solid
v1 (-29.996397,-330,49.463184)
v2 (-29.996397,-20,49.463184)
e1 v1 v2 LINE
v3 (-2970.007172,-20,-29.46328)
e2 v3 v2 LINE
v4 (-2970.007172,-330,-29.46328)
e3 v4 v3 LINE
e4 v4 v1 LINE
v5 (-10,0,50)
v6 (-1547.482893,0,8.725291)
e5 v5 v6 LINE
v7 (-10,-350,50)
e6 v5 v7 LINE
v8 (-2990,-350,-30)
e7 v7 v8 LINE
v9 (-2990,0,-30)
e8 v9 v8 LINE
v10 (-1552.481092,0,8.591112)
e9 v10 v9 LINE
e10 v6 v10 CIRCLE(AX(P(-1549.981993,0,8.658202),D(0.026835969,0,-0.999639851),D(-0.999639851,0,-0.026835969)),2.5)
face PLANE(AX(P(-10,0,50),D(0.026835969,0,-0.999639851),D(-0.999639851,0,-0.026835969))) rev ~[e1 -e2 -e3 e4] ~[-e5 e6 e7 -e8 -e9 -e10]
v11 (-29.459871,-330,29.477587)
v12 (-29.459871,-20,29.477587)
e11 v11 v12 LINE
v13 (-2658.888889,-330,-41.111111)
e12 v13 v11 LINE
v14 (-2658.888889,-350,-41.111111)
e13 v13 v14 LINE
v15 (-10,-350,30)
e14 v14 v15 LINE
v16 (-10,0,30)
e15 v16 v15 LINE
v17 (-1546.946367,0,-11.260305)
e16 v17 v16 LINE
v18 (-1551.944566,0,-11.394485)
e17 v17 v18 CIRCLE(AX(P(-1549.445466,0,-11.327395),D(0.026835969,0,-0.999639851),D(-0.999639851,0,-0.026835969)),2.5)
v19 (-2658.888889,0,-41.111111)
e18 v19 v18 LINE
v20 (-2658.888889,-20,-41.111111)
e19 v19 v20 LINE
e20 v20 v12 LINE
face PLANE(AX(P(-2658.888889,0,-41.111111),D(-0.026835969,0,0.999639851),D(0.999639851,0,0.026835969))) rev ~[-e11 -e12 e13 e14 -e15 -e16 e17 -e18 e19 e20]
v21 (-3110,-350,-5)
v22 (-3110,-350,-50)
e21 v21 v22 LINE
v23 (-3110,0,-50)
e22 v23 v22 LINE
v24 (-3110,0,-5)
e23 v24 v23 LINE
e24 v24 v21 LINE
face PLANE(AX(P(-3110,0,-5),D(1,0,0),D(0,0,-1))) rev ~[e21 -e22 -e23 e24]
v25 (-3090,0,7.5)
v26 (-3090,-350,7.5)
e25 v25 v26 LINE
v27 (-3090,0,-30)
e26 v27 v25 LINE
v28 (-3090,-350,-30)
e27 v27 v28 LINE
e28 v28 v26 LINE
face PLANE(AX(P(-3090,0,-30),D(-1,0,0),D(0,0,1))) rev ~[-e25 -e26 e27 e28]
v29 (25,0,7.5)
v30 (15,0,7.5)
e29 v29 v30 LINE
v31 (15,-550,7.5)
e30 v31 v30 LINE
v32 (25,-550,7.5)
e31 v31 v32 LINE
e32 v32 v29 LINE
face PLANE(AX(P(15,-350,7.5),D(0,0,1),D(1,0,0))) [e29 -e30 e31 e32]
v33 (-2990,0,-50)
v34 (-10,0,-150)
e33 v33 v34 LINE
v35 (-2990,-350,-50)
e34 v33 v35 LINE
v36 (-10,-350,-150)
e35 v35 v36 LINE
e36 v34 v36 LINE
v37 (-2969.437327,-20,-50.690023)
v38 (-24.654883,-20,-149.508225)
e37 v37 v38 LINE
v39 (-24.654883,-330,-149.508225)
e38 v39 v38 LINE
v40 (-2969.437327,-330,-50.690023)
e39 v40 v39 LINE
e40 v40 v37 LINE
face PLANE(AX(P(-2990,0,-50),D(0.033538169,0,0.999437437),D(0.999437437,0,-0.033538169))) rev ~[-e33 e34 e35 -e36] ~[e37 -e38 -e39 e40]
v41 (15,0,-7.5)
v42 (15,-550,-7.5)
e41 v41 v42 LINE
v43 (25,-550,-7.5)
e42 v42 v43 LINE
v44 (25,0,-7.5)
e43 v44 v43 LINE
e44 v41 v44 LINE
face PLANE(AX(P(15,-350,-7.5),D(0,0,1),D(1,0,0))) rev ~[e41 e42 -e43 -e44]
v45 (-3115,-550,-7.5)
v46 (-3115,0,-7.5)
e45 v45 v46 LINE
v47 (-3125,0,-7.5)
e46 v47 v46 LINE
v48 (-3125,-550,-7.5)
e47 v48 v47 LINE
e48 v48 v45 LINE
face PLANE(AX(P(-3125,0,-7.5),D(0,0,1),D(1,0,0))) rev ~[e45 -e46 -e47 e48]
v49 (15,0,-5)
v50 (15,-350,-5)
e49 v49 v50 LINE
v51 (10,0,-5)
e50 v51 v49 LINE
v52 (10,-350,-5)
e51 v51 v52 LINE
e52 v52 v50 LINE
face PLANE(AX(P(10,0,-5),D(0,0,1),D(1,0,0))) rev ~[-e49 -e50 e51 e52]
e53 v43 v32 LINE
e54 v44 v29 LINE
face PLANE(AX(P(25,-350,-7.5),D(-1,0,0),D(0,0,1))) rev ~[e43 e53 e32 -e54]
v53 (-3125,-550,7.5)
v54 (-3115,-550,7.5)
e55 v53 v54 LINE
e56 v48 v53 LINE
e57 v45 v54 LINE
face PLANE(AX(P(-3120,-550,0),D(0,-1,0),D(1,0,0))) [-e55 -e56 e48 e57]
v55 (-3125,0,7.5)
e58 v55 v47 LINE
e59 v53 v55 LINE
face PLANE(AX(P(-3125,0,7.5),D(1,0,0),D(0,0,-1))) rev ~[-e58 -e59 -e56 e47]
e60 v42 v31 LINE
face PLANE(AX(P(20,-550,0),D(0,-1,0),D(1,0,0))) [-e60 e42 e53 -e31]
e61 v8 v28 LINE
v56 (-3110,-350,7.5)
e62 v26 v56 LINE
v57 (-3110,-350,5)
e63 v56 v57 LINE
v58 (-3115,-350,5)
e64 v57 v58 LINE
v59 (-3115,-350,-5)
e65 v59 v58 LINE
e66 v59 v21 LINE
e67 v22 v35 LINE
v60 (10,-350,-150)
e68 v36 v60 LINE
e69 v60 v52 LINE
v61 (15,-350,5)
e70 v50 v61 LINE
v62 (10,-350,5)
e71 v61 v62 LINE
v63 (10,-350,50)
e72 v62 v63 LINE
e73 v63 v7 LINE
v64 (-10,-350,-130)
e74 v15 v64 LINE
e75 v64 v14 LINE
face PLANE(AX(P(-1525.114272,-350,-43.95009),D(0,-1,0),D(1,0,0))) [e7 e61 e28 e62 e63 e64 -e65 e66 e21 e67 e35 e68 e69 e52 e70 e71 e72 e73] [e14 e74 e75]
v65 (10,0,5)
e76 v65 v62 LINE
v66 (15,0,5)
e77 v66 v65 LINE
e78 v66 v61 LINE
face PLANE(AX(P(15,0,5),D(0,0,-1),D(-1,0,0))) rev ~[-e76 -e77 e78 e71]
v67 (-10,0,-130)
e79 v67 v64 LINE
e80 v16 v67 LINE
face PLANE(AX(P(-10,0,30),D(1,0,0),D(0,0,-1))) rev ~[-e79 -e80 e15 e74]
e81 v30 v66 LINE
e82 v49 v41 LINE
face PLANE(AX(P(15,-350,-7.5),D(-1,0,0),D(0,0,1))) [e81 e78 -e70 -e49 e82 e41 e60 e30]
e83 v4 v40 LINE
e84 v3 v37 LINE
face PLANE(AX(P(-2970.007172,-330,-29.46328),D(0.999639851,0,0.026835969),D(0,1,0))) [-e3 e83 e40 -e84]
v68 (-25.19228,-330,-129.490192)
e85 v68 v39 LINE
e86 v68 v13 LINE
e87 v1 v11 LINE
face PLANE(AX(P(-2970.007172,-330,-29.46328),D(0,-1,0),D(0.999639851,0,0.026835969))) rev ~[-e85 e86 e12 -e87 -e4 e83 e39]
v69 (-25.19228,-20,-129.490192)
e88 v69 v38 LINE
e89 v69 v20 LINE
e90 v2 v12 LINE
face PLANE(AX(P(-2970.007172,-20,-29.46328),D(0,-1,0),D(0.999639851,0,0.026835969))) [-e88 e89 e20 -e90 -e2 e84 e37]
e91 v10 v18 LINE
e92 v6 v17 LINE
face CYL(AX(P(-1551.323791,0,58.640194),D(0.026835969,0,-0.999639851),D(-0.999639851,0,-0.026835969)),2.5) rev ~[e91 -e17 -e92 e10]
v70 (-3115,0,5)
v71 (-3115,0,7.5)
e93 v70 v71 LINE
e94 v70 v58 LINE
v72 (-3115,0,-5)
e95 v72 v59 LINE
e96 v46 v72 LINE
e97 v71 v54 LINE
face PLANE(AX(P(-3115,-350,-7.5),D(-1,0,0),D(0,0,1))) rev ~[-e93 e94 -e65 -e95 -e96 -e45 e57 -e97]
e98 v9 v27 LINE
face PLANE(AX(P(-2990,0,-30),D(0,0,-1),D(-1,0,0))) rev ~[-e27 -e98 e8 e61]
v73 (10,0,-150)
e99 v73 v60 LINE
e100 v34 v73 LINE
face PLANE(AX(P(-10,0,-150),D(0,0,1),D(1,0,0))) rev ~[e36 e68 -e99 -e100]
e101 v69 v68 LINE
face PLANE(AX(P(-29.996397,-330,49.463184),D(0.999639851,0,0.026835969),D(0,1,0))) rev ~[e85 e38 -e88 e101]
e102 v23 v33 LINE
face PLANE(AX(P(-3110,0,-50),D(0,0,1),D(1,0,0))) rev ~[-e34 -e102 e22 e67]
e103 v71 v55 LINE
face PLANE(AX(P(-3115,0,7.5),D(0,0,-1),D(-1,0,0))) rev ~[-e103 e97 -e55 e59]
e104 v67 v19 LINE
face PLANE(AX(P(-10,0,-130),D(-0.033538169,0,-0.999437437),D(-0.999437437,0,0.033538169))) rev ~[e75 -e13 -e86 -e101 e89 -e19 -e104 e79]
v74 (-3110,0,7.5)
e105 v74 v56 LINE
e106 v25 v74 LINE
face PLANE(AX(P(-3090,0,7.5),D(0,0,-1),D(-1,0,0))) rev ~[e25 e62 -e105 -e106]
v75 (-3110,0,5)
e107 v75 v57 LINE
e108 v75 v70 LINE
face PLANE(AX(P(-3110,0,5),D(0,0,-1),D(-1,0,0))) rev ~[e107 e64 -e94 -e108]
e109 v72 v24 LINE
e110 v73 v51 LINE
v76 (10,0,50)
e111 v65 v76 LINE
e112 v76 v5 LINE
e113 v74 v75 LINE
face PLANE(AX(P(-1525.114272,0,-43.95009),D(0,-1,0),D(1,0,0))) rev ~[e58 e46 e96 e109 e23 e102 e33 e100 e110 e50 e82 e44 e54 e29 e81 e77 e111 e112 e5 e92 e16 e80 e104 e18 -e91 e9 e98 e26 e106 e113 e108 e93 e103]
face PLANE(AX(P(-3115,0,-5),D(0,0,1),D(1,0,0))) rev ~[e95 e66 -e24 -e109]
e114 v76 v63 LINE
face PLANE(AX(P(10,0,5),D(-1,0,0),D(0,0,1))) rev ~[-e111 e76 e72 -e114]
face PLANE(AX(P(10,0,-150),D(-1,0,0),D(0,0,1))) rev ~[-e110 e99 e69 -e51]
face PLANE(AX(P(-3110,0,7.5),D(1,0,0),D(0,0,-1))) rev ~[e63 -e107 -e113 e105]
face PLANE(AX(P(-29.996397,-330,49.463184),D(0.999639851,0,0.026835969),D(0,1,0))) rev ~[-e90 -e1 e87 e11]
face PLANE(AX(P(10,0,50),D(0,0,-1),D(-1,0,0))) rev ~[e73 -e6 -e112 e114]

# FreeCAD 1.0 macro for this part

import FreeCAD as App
import Part
import Sketcher

V = App.Vector
Q = App.Units.Quantity

doc = App.newDocument("Part")
body = doc.addObject("PartDesign::Body", "Body")

sketch1 = body.newObject("Sketcher::SketchObject", "Sketch")
sketch1.AttachmentSupport = (doc.getObject("XZ_Plane"), [""])
sketch1.MapMode = "FlatFace"
sketch1.addGeometry([
    Part.LineSegment(V(-2990, -50, 0), V(-10, -150, 0)),
    Part.LineSegment(V(-10, -150, 0), V(10, -150, 0)),
    Part.LineSegment(V(10, -150, 0), V(10, -5, 0)),
    Part.LineSegment(V(10, -5, 0), V(15, -5, 0)),
    Part.LineSegment(V(15, -5, 0), V(15, -7.5, 0)),
    Part.LineSegment(V(15, -7.5, 0), V(25, -7.5, 0)),
    Part.LineSegment(V(25, -7.5, 0), V(25, 7.5, 0)),
    Part.LineSegment(V(25, 7.5, 0), V(15, 7.5, 0)),
    Part.LineSegment(V(15, 7.5, 0), V(15, 5, 0)),
    Part.LineSegment(V(15, 5, 0), V(10, 5, 0)),
    Part.LineSegment(V(10, 5, 0), V(10, 50, 0)),
    Part.LineSegment(V(10, 50, 0), V(-10, 50, 0)),
    Part.LineSegment(V(-10, 50, 0), V(-2990, -30, 0)),
    Part.LineSegment(V(-2990, -30, 0), V(-3090, -30, 0)),
    Part.LineSegment(V(-3090, -30, 0), V(-3090, 7.5, 0)),
    Part.LineSegment(V(-3090, 7.5, 0), V(-3110, 7.5, 0)),
    Part.LineSegment(V(-3110, 7.5, 0), V(-3110, 5, 0)),
    Part.LineSegment(V(-3110, 5, 0), V(-3115, 5, 0)),
    Part.LineSegment(V(-3115, 5, 0), V(-3115, 7.5, 0)),
    Part.LineSegment(V(-3115, 7.5, 0), V(-3125, 7.5, 0)),
    Part.LineSegment(V(-3125, 7.5, 0), V(-3125, -7.5, 0)),
    Part.LineSegment(V(-3125, -7.5, 0), V(-3115, -7.5, 0)),
    Part.LineSegment(V(-3115, -7.5, 0), V(-3115, -5, 0)),
    Part.LineSegment(V(-3115, -5, 0), V(-3110, -5, 0)),
    Part.LineSegment(V(-3110, -5, 0), V(-3110, -50, 0)),
    Part.LineSegment(V(-3110, -50, 0), V(-2990, -50, 0)),
    Part.LineSegment(V(-10, -130, 0), V(-2658.888889, -41.111111, 0)),
    Part.LineSegment(V(-2658.888889, -41.111111, 0), V(-10, 30, 0)),
    Part.LineSegment(V(-10, 30, 0), V(-10, -130, 0)),
], False)
sketch1.addConstraint([
    Sketcher.Constraint("Coincident", 0, 2, 1, 1),
    Sketcher.Constraint("Coincident", 1, 2, 2, 1),
    Sketcher.Constraint("Coincident", 2, 2, 3, 1),
    Sketcher.Constraint("Coincident", 3, 2, 4, 1),
    Sketcher.Constraint("Coincident", 4, 2, 5, 1),
    Sketcher.Constraint("Coincident", 5, 2, 6, 1),
    Sketcher.Constraint("Coincident", 6, 2, 7, 1),
    Sketcher.Constraint("Coincident", 7, 2, 8, 1),
    Sketcher.Constraint("Coincident", 8, 2, 9, 1),
    Sketcher.Constraint("Coincident", 9, 2, 10, 1),
    Sketcher.Constraint("Coincident", 10, 2, 11, 1),
    Sketcher.Constraint("Coincident", 11, 2, 12, 1),
    Sketcher.Constraint("Coincident", 12, 2, 13, 1),
    Sketcher.Constraint("Coincident", 13, 2, 14, 1),
    Sketcher.Constraint("Coincident", 14, 2, 15, 1),
    Sketcher.Constraint("Coincident", 15, 2, 16, 1),
    Sketcher.Constraint("Coincident", 16, 2, 17, 1),
    Sketcher.Constraint("Coincident", 17, 2, 18, 1),
    Sketcher.Constraint("Coincident", 18, 2, 19, 1),
    Sketcher.Constraint("Coincident", 19, 2, 20, 1),
    Sketcher.Constraint("Coincident", 20, 2, 21, 1),
    Sketcher.Constraint("Coincident", 21, 2, 22, 1),
    Sketcher.Constraint("Coincident", 22, 2, 23, 1),
    Sketcher.Constraint("Coincident", 23, 2, 24, 1),
    Sketcher.Constraint("Coincident", 24, 2, 25, 1),
    Sketcher.Constraint("Coincident", 25, 2, 0, 1),
    Sketcher.Constraint("Coincident", 26, 2, 27, 1),
    Sketcher.Constraint("Coincident", 27, 2, 28, 1),
    Sketcher.Constraint("Coincident", 28, 2, 26, 1),
    Sketcher.Constraint("Horizontal", 1),
    Sketcher.Constraint("Vertical", 2),
    Sketcher.Constraint("Horizontal", 3),
    Sketcher.Constraint("Vertical", 4),
    Sketcher.Constraint("Horizontal", 5),
    Sketcher.Constraint("Vertical", 6),
    Sketcher.Constraint("Horizontal", 7),
    Sketcher.Constraint("Vertical", 8),
    Sketcher.Constraint("Horizontal", 9),
    Sketcher.Constraint("Vertical", 10),
    Sketcher.Constraint("Horizontal", 11),
    Sketcher.Constraint("Horizontal", 13),
    Sketcher.Constraint("Vertical", 14),
    Sketcher.Constraint("Horizontal", 15),
    Sketcher.Constraint("Vertical", 16),
    Sketcher.Constraint("Horizontal", 17),
    Sketcher.Constraint("Vertical", 18),
    Sketcher.Constraint("Horizontal", 19),
    Sketcher.Constraint("Vertical", 20),
    Sketcher.Constraint("Horizontal", 21),
    Sketcher.Constraint("Vertical", 22),
    Sketcher.Constraint("Horizontal", 23),
    Sketcher.Constraint("Vertical", 24),
    Sketcher.Constraint("Horizontal", 25),
    Sketcher.Constraint("Vertical", 28),
    Sketcher.Constraint("Symmetric", 4, 2, 7, 2, -1),
    Sketcher.Constraint("Symmetric", 2, 2, 9, 2, -1),
    Sketcher.Constraint("Symmetric", 18, 2, 21, 2, -1),
    Sketcher.Constraint("Symmetric", 16, 2, 23, 2, -1),
    Sketcher.Constraint("Parallel", 0, 26),
    Sketcher.Constraint("Parallel", 12, 27),
    Sketcher.Constraint("Horizontal", 7, 2, 14, 2),
    Sketcher.Constraint("Horizontal", 9, 2, 16, 2),
    Sketcher.Constraint("Horizontal", 15, 2, 18, 2),
    Sketcher.Constraint("Vertical", 0, 2, 11, 2),
    Sketcher.Constraint("Vertical", 12, 2, 25, 2),
    Sketcher.Constraint("Vertical", 11, 2, 27, 2),
    Sketcher.Constraint("Equal", 11, 15),
    Sketcher.Constraint("Equal", 9, 17),
    Sketcher.Constraint("Equal", 7, 19),
    Sketcher.Constraint("Equal", 10, 24),
    Sketcher.Constraint("DistanceX", 1, 1, 1, 2, Q("20 mm")),
    Sketcher.Constraint("DistanceX", 3, 1, 3, 2, Q("5 mm")),
    Sketcher.Constraint("DistanceX", 5, 1, 5, 2, Q("10 mm")),
    Sketcher.Constraint("DistanceX", 13, 2, 13, 1, Q("100 mm")),
    Sketcher.Constraint("DistanceY", 2, 1, 2, 2, Q("145 mm")),
    Sketcher.Constraint("DistanceY", 6, 1, 6, 2, Q("15 mm")),
    Sketcher.Constraint("DistanceY", 10, 1, 10, 2, Q("45 mm")),
    Sketcher.Constraint("DistanceY", 28, 2, 28, 1, Q("160 mm")),
    Sketcher.Constraint("DistanceY", 4, 2, 4, 1, Q("2.5 mm")),
    Sketcher.Constraint("DistanceY", 14, 1, 14, 2, Q("37.5 mm")),
    Sketcher.Constraint("DistanceX", 0, 2, -1, 1, Q("10 mm")),
    Sketcher.Constraint("DistanceX", 12, 2, -1, 1, Q("2990 mm")),
    Sketcher.Constraint("DistanceY", -1, 1, 27, 2, Q("30 mm")),
])
pad1 = body.newObject("PartDesign::Pad", "Pad")
pad1.Profile = sketch1
pad1.Length = 350

sketch2 = body.newObject("Sketcher::SketchObject", "Sketch001")
sketch2.Placement = App.Placement(V(-1.348517, 0, 50.232255), App.Rotation(V(0.999639851, 0, 0.026835969), V(0, 1.000000001, 0), V(-0.026835969, 0, 0.999639851), "ZXY"))
sketch2.addGeometry([
    Part.LineSegment(V(-2969.728204, -20, 0), V(-2969.728204, -330.000001, 0)),
    Part.LineSegment(V(-2969.728204, -330.000001, 0), V(-28.658202, -330.000001, 0)),
    Part.LineSegment(V(-28.658202, -330.000001, 0), V(-28.658202, -20, 0)),
    Part.LineSegment(V(-28.658202, -20, 0), V(-2969.728204, -20, 0)),
], False)
sketch2.addConstraint([
    Sketcher.Constraint("Coincident", 0, 2, 1, 1),
    Sketcher.Constraint("Coincident", 1, 2, 2, 1),
    Sketcher.Constraint("Coincident", 2, 2, 3, 1),
    Sketcher.Constraint("Coincident", 3, 2, 0, 1),
    Sketcher.Constraint("Vertical", 0),
    Sketcher.Constraint("Horizontal", 1),
    Sketcher.Constraint("Vertical", 2),
    Sketcher.Constraint("Horizontal", 3),
    Sketcher.Constraint("DistanceY", 0, 2, 0, 1, Q("310.000001 mm")),
    Sketcher.Constraint("DistanceY", 0, 2, -1, 1, Q("330.000001 mm")),
    Sketcher.Constraint("DistanceX", 1, 2, -1, 1, Q("28.658202 mm")),
    Sketcher.Constraint("DistanceX", 1, 1, 1, 2, Q("2941.070003 mm")),
])
pocket1 = body.newObject("PartDesign::Pocket", "Pocket")
pocket1.Profile = sketch2
pocket1.Length = 250

sketch3 = body.newObject("Sketcher::SketchObject", "Sketch002")
sketch3.AttachmentSupport = (doc.getObject("XZ_Plane"), [""])
sketch3.MapMode = "FlatFace"
sketch3.AttachmentOffset = App.Placement(V(0, 0, 350), App.Rotation())
sketch3.addGeometry([
    Part.LineSegment(V(15, 7.5, 0), V(15, -7.5, 0)),
    Part.LineSegment(V(15, -7.5, 0), V(25, -7.5, 0)),
    Part.LineSegment(V(25, -7.5, 0), V(25, 7.5, 0)),
    Part.LineSegment(V(25, 7.5, 0), V(15, 7.5, 0)),
    Part.LineSegment(V(-3125, 7.5, 0), V(-3125, -7.5, 0)),
    Part.LineSegment(V(-3125, -7.5, 0), V(-3115, -7.5, 0)),
    Part.LineSegment(V(-3115, -7.5, 0), V(-3115, 7.5, 0)),
    Part.LineSegment(V(-3115, 7.5, 0), V(-3125, 7.5, 0)),
], False)
sketch3.addConstraint([
    Sketcher.Constraint("Coincident", 0, 2, 1, 1),
    Sketcher.Constraint("Coincident", 1, 2, 2, 1),
    Sketcher.Constraint("Coincident", 2, 2, 3, 1),
    Sketcher.Constraint("Coincident", 3, 2, 0, 1),
    Sketcher.Constraint("Coincident", 4, 2, 5, 1),
    Sketcher.Constraint("Coincident", 5, 2, 6, 1),
    Sketcher.Constraint("Coincident", 6, 2, 7, 1),
    Sketcher.Constraint("Coincident", 7, 2, 4, 1),
    Sketcher.Constraint("Vertical", 0),
    Sketcher.Constraint("Horizontal", 1),
    Sketcher.Constraint("Vertical", 2),
    Sketcher.Constraint("Horizontal", 3),
    Sketcher.Constraint("Vertical", 4),
    Sketcher.Constraint("Horizontal", 5),
    Sketcher.Constraint("Vertical", 6),
    Sketcher.Constraint("Horizontal", 7),
    Sketcher.Constraint("Horizontal", 1, 2, 4, 2),
    Sketcher.Constraint("Horizontal", 3, 2, 6, 2),
    Sketcher.Constraint("Equal", 3, 5),
    Sketcher.Constraint("DistanceX", 1, 1, 1, 2, Q("10 mm")),
    Sketcher.Constraint("DistanceY", 0, 2, 0, 1, Q("15 mm")),
    Sketcher.Constraint("DistanceX", -1, 1, 0, 2, Q("15 mm")),
    Sketcher.Constraint("DistanceX", 4, 2, -1, 1, Q("3125 mm")),
    Sketcher.Constraint("DistanceY", 0, 2, -1, 1, Q("7.5 mm")),
])
pad2 = body.newObject("PartDesign::Pad", "Pad001")
pad2.Profile = sketch3
pad2.Length = 200

sketch4 = body.newObject("Sketcher::SketchObject", "Sketch003")
sketch4.Placement = App.Placement(V(-1.348517, 0, 50.232255), App.Rotation(V(0.999639851, 0, 0.026835969), V(0, 1.000000001, 0), V(-0.026835969, 0, 0.999639851), "ZXY"))
sketch4.addGeometry(Part.Circle(V(-1549.191418, 0, 0), V(0, 0, 1), 2.5), False)
sketch4.addConstraint([
    Sketcher.Constraint("PointOnObject", 0, 3, -1),
    Sketcher.Constraint("Diameter", 0, Q("5 mm")),
    Sketcher.Constraint("DistanceX", 0, 3, -1, 1, Q("1549.191418 mm")),
])
doc.recompute()
hole = body.newObject("PartDesign::Hole", "Hole")
hole.Profile = sketch4
hole.ThreadType = "None"
hole.Diameter = 5
hole.DepthType = "Dimension"
hole.Depth = 50
hole.DrillPoint = "Angled"
hole.DrillPointAngle = 118

doc.recompute()
